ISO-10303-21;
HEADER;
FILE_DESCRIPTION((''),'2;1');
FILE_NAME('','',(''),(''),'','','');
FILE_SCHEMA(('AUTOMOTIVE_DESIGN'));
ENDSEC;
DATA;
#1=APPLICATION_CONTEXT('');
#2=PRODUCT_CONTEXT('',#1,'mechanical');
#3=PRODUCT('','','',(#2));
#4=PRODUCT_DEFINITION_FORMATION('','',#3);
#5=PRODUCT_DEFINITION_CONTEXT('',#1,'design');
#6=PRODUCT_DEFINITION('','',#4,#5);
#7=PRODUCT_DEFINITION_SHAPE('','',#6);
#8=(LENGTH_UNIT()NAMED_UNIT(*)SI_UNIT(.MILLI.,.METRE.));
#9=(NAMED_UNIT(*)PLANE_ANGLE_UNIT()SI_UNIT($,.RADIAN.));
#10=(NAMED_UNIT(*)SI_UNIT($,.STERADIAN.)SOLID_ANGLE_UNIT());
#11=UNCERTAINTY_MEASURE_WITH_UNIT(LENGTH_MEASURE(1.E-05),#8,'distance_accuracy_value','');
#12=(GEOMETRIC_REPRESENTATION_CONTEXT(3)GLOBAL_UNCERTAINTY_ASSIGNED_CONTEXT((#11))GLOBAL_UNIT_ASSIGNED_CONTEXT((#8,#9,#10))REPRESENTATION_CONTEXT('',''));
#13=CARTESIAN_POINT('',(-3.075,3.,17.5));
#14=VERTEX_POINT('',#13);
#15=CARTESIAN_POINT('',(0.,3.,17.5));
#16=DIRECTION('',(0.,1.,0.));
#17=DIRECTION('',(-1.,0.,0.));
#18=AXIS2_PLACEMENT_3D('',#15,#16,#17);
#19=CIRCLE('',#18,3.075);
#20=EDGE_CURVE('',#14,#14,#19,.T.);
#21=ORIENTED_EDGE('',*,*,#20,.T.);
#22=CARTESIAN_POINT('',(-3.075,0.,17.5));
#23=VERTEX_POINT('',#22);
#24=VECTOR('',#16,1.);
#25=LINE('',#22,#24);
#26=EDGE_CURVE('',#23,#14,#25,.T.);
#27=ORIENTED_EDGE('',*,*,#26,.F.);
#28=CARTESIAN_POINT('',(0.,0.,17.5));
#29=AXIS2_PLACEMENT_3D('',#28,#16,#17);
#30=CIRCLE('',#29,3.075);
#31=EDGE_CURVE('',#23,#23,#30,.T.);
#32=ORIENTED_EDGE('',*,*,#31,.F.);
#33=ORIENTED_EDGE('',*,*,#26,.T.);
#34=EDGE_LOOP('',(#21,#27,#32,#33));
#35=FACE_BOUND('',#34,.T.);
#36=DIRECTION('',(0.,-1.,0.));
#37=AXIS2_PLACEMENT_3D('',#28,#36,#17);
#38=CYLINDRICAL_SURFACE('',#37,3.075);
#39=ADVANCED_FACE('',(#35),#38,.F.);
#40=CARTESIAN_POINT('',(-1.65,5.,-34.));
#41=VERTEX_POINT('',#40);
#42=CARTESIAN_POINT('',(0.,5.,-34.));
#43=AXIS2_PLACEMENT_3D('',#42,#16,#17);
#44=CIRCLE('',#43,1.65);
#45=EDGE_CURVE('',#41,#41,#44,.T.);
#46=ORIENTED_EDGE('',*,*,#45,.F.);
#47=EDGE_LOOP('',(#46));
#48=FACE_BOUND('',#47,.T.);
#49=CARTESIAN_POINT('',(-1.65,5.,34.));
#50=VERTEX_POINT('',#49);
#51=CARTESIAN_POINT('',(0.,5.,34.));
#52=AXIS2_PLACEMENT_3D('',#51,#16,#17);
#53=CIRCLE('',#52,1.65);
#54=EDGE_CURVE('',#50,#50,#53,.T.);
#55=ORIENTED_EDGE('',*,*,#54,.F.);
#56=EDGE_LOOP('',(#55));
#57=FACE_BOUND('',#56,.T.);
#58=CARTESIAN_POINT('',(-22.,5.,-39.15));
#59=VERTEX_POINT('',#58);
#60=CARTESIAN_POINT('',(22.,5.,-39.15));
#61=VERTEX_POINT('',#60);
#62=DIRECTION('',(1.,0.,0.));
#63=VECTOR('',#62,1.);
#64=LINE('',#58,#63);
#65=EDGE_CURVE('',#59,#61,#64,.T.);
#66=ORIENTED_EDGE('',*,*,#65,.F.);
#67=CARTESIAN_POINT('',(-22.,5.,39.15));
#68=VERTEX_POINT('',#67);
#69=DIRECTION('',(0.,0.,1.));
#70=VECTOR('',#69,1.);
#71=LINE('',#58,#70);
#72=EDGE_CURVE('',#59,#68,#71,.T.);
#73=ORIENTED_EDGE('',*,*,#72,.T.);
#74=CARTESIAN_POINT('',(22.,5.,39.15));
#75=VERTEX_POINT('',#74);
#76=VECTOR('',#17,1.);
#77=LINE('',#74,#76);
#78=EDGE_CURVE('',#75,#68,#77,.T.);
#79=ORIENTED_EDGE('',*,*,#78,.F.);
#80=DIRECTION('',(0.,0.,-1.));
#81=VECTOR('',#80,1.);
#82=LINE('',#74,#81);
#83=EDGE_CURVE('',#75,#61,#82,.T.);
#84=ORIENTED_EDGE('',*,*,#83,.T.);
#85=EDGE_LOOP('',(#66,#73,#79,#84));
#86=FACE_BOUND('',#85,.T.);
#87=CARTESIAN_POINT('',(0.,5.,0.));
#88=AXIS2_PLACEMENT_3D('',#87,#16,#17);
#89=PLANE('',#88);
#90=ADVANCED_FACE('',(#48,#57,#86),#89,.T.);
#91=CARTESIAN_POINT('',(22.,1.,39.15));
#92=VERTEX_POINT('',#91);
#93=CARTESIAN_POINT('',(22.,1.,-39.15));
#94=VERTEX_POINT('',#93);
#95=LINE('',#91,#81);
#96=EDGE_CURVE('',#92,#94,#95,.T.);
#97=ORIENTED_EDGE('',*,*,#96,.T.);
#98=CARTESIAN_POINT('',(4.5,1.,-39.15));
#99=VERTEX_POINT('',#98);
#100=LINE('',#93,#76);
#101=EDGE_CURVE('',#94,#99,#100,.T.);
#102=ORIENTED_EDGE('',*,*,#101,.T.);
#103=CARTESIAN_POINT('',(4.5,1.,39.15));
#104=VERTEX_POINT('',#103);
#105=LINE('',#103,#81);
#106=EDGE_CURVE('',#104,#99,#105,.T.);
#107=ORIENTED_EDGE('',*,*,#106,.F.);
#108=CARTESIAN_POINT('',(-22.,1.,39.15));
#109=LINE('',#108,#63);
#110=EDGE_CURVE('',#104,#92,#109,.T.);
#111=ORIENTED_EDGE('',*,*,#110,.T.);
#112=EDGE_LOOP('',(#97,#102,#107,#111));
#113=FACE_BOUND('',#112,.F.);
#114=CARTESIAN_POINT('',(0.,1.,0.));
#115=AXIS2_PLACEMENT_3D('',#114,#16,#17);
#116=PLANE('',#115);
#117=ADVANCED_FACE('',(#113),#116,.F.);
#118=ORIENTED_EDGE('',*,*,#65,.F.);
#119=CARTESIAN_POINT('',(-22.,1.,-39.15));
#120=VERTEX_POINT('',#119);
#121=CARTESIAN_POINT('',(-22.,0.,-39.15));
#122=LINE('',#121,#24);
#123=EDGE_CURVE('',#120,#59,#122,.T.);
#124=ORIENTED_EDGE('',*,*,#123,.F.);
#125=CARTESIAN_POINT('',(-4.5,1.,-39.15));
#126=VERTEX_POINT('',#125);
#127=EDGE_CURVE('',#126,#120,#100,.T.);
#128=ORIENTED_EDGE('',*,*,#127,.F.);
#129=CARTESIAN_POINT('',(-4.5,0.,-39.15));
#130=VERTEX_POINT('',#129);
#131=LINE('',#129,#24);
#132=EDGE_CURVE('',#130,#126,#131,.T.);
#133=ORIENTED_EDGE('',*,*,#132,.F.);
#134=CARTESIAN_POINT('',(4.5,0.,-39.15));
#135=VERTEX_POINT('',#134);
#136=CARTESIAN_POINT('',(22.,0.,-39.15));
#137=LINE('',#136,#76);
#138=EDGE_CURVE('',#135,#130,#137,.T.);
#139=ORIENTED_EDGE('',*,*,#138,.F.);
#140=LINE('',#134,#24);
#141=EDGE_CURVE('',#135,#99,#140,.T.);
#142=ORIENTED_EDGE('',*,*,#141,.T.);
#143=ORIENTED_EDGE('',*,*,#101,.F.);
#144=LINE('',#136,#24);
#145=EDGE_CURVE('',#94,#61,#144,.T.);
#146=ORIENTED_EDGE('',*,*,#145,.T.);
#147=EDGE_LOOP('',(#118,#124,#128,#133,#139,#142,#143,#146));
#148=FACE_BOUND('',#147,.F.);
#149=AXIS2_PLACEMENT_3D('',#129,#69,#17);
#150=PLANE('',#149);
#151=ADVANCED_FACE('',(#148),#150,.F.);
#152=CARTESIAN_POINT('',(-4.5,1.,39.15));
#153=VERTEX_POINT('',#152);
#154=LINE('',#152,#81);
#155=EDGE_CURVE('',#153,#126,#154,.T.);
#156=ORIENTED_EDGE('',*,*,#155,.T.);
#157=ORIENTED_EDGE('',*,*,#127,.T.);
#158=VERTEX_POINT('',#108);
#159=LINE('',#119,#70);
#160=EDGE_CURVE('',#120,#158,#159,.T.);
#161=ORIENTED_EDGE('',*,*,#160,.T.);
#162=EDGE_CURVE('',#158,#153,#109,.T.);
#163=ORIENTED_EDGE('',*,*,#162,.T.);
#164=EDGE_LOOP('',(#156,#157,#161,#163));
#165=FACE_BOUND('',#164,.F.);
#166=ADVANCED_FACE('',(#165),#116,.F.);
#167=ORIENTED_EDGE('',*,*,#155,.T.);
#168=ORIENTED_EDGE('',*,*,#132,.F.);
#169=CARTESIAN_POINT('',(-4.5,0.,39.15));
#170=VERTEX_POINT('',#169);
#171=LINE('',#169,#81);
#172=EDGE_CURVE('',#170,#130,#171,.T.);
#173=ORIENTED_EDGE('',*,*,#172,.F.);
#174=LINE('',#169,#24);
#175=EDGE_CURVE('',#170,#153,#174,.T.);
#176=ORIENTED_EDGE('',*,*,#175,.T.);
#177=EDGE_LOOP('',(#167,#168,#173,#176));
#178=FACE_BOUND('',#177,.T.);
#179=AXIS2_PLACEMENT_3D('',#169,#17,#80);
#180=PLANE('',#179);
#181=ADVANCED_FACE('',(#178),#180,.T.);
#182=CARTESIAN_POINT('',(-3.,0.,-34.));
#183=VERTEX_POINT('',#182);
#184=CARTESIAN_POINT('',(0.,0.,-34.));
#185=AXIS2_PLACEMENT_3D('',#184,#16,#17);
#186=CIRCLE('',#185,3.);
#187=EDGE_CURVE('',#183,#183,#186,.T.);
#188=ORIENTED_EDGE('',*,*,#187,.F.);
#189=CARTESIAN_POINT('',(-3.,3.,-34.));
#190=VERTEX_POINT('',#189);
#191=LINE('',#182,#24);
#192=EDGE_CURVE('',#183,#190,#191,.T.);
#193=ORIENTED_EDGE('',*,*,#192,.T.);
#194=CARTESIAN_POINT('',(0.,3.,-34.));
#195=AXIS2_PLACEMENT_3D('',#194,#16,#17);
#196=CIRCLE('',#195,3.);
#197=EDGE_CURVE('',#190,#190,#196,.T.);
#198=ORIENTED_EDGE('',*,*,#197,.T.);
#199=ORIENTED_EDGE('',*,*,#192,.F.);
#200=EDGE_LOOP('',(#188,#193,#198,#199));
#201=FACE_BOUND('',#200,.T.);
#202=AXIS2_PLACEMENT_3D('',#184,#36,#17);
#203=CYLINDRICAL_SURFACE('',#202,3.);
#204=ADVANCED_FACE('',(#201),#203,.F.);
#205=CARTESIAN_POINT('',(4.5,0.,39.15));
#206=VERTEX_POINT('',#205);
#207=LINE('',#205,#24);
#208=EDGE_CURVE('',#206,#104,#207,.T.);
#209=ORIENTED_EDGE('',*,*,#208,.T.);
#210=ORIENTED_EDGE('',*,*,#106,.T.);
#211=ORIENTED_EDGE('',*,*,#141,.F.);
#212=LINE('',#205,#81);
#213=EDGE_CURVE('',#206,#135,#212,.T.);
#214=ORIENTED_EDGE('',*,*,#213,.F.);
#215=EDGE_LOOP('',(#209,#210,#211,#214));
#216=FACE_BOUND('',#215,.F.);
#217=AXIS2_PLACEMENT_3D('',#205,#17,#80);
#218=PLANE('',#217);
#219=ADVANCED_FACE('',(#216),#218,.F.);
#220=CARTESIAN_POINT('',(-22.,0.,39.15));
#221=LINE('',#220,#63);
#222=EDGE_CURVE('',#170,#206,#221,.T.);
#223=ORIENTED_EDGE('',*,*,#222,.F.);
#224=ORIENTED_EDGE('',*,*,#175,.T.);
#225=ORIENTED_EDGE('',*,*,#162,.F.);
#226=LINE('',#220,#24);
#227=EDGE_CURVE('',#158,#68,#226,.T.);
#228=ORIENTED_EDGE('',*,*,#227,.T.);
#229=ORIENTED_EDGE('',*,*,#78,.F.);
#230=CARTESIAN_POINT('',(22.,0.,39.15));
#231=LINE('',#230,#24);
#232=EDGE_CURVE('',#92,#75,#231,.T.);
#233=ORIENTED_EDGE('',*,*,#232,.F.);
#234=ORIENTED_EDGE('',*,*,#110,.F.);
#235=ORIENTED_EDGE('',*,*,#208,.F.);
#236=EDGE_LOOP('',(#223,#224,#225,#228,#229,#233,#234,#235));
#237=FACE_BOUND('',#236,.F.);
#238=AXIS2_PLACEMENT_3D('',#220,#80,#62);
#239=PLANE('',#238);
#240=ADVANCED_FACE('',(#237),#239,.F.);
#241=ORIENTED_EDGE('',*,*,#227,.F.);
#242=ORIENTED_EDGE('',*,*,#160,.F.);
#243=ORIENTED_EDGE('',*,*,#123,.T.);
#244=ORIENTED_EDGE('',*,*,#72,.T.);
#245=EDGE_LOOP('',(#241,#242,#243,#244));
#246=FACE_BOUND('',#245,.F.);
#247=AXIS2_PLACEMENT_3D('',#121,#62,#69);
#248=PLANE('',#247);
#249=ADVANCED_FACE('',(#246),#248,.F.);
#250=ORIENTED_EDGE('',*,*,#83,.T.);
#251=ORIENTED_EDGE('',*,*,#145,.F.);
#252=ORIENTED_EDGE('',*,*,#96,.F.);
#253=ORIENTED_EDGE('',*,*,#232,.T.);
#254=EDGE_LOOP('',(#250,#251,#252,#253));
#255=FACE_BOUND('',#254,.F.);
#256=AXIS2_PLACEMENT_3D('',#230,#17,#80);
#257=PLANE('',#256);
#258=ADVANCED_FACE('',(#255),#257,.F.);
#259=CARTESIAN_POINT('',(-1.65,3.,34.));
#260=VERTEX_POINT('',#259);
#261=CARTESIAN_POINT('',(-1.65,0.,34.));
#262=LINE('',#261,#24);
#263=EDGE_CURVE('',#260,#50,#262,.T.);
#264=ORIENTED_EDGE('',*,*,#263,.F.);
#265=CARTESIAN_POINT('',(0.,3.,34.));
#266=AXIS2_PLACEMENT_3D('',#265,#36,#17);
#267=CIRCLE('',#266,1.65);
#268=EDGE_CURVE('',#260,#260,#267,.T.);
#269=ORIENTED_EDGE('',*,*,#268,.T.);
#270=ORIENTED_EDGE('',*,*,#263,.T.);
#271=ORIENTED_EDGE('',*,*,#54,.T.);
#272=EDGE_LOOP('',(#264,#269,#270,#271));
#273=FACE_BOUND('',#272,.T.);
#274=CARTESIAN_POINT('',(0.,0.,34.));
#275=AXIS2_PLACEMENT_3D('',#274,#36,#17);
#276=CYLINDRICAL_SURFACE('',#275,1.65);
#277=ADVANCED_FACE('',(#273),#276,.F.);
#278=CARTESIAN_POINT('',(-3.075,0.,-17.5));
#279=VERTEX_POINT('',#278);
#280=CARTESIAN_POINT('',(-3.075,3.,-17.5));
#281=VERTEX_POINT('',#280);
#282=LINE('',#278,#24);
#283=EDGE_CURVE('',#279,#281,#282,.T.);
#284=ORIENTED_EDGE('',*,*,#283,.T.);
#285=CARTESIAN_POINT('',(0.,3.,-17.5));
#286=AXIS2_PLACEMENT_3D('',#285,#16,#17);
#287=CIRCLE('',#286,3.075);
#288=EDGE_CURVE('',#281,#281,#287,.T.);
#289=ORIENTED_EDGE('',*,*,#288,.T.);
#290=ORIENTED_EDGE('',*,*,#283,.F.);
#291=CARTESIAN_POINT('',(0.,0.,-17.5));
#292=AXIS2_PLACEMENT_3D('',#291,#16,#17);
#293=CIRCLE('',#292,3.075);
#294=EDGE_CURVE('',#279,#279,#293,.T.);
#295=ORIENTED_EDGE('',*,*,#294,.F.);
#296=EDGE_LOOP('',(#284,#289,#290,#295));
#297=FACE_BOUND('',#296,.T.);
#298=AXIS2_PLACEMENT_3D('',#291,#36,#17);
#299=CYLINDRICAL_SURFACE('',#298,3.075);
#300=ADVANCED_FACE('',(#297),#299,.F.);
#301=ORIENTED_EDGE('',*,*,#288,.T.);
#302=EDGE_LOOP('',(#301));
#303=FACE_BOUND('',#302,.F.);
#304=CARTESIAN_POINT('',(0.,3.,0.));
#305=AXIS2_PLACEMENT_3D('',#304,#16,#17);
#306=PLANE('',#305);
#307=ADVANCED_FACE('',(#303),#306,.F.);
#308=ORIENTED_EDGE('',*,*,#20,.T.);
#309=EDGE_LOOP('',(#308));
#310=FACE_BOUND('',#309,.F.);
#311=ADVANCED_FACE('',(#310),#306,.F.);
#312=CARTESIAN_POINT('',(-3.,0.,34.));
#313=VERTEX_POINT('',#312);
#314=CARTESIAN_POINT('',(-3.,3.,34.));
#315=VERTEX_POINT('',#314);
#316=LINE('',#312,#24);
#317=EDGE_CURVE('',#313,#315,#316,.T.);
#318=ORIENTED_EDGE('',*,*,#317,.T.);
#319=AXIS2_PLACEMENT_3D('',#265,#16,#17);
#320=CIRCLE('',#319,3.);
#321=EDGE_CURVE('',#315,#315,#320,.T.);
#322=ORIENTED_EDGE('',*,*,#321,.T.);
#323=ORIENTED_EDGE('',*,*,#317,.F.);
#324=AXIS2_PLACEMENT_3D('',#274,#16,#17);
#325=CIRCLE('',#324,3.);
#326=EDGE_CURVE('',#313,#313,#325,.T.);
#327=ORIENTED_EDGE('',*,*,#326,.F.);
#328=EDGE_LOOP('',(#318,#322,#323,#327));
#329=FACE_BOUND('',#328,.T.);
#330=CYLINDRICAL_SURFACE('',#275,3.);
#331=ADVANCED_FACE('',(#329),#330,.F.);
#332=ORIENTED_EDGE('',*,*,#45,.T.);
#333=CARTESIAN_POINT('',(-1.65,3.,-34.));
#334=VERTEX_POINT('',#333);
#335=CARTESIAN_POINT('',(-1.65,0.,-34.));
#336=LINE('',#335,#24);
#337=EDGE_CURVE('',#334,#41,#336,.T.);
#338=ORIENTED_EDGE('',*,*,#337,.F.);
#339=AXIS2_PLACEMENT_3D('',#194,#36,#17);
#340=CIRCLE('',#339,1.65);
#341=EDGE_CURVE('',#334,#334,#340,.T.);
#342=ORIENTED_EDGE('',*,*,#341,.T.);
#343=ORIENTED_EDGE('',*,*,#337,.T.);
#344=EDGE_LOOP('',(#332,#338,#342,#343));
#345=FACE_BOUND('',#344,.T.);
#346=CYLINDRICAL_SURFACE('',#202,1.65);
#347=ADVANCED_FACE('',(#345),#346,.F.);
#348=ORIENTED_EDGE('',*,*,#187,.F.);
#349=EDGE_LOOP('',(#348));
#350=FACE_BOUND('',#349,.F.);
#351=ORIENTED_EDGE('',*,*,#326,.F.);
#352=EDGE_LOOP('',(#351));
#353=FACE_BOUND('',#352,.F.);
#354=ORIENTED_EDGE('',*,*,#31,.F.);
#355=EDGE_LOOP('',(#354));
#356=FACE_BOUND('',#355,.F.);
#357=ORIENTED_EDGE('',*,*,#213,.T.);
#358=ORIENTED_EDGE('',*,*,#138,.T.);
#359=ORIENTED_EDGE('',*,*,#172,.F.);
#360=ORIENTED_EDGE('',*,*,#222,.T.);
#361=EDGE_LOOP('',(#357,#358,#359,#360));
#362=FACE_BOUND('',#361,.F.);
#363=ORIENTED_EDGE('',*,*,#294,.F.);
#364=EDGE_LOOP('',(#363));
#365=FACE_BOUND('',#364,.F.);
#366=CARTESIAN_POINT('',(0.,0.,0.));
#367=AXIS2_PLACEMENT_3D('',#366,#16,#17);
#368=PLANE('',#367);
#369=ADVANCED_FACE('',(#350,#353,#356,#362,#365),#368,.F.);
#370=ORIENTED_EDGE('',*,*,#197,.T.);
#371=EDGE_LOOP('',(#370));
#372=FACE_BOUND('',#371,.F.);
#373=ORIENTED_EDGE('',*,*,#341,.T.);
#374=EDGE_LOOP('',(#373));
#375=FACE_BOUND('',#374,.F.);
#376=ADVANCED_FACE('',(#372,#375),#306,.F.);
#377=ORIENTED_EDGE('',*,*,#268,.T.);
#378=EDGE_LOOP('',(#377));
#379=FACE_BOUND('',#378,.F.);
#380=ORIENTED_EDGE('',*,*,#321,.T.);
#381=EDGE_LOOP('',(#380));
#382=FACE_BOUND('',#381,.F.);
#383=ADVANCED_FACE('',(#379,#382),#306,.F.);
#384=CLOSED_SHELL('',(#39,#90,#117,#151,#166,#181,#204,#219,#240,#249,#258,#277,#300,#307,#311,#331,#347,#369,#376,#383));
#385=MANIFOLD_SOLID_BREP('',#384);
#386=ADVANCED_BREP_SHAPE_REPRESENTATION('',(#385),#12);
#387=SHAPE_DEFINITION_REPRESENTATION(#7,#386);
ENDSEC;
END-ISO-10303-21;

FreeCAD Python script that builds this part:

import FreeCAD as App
import Part
import Sketcher


def add_polygon(sketch, points):
    """Adds a closed chain of lines whose ends are joined by coincident constraints."""
    first, n = sketch.GeometryCount, len(points)
    for a, b in zip(points, points[1:] + points[:1]):
        sketch.addGeometry(Part.LineSegment(App.Vector(*a, 0), App.Vector(*b, 0)), False)
    for i in range(n):
        sketch.addConstraint(Sketcher.Constraint("Coincident", first + i, 2, first + (i + 1) % n, 1))

doc = App.newDocument("Part")
body = doc.addObject("PartDesign::Body", "Body")

# Sketch on XZ plane
sketch1 = body.newObject("Sketcher::SketchObject", "Sketch")
sketch1.AttachmentSupport = (doc.getObject("XZ_Plane"), [""])
sketch1.MapMode = "FlatFace"
add_polygon(sketch1, [(-22, -39.1), (-22, 39.1), (22, 39.1), (22, -39.1)])  # lines 0-3
sketch1.addGeometry(Part.Circle(App.Vector(0, 34, 0), App.Vector(0, 0, 1), 1.6), False)  # 4
sketch1.addGeometry(Part.Circle(App.Vector(0, -34, 0), App.Vector(0, 0, 1), 1.6), False)  # 5
sketch1.addConstraint([
    Sketcher.Constraint("Vertical", 0),
    Sketcher.Constraint("Horizontal", 1),
    Sketcher.Constraint("Vertical", 2),
    Sketcher.Constraint("Horizontal", 3),
    Sketcher.Constraint("Equal", 4, 5),
    Sketcher.Constraint("Symmetric", 4, 3, 5, 3, -1, 1),
    Sketcher.Constraint("Symmetric", 0, 2, 2, 2, -1, 1),
    Sketcher.Constraint("PointOnObject", 4, 3, -2),
    Sketcher.Constraint("Diameter", 4, 3.3),
    Sketcher.Constraint("DistanceX", 1, 1, 1, 2, 44.0),
    Sketcher.Constraint("DistanceY", 0, 1, 0, 2, 78.3),
    Sketcher.Constraint("DistanceY", 5, 3, 4, 3, 68.0),
])
pad1 = body.newObject("PartDesign::Pad", "Pad")
pad1.Profile = sketch1
pad1.Length = 5
pad1.Reversed = True

# Sketch on XZ plane
sketch2 = body.newObject("Sketcher::SketchObject", "Sketch001")
sketch2.AttachmentSupport = (doc.getObject("XZ_Plane"), [""])
sketch2.MapMode = "FlatFace"
sketch2.addGeometry([
    Part.Circle(App.Vector(0, 17.5, 0), App.Vector(0, 0, 1), 3.1),
    Part.Circle(App.Vector(0, -17.5, 0), App.Vector(0, 0, 1), 3.1),
], False)
sketch2.addConstraint([
    Sketcher.Constraint("Equal", 0, 1),
    Sketcher.Constraint("Symmetric", 0, 3, 1, 3, -1, 1),
    Sketcher.Constraint("PointOnObject", 0, 3, -2),
    Sketcher.Constraint("Diameter", 0, 6.15),
    Sketcher.Constraint("DistanceY", 1, 3, 0, 3, 35.0),
])
pocket1 = body.newObject("PartDesign::Pocket", "Pocket")
pocket1.Profile = sketch2
pocket1.Length = 3

# Sketch on XZ plane
sketch3 = body.newObject("Sketcher::SketchObject", "Sketch002")
sketch3.AttachmentSupport = (doc.getObject("XZ_Plane"), [""])
sketch3.MapMode = "FlatFace"
sketch3.addGeometry([
    Part.Circle(App.Vector(0, 34, 0), App.Vector(0, 0, 1), 3),
    Part.Circle(App.Vector(0, -34, 0), App.Vector(0, 0, 1), 3),
], False)
sketch3.addConstraint([
    Sketcher.Constraint("Equal", 0, 1),
    Sketcher.Constraint("Symmetric", 0, 3, 1, 3, -1, 1),
    Sketcher.Constraint("PointOnObject", 0, 3, -2),
    Sketcher.Constraint("Diameter", 0, 6.0),
    Sketcher.Constraint("DistanceY", 1, 3, 0, 3, 68.0),
])
pocket2 = body.newObject("PartDesign::Pocket", "Pocket001")
pocket2.Profile = sketch3
pocket2.Length = 3

# Sketch on XZ plane
sketch4 = body.newObject("Sketcher::SketchObject", "Sketch003")
sketch4.AttachmentSupport = (doc.getObject("XZ_Plane"), [""])
sketch4.MapMode = "FlatFace"
add_polygon(sketch4, [(-22, -39), (-22, 39), (-4, 39), (-4, -39)])  # lines 0-3
add_polygon(sketch4, [(4, -39), (4, 39), (22, 39), (22, -39)])  # lines 4-7
sketch4.addConstraint([
    Sketcher.Constraint("Vertical", 0),
    Sketcher.Constraint("Horizontal", 1),
    Sketcher.Constraint("Vertical", 2),
    Sketcher.Constraint("Horizontal", 3),
    Sketcher.Constraint("Vertical", 4),
    Sketcher.Constraint("Horizontal", 5),
    Sketcher.Constraint("Vertical", 6),
    Sketcher.Constraint("Horizontal", 7),
    Sketcher.Constraint("Symmetric", 2, 2, 4, 2, -1, 1),
    Sketcher.Constraint("Symmetric", 0, 2, 6, 2, -1, 1),
    Sketcher.Constraint("Horizontal", 1, 2, 4, 2),
    Sketcher.Constraint("DistanceX", 1, 1, 1, 2, 17.5),
    Sketcher.Constraint("DistanceY", 0, 1, 0, 2, 78.3),
    Sketcher.Constraint("DistanceX", 0, 2, 5, 2, 44.0),
])
pocket3 = body.newObject("PartDesign::Pocket", "Pocket002")
pocket3.Profile = sketch4
pocket3.Length = 1

doc.recompute()
